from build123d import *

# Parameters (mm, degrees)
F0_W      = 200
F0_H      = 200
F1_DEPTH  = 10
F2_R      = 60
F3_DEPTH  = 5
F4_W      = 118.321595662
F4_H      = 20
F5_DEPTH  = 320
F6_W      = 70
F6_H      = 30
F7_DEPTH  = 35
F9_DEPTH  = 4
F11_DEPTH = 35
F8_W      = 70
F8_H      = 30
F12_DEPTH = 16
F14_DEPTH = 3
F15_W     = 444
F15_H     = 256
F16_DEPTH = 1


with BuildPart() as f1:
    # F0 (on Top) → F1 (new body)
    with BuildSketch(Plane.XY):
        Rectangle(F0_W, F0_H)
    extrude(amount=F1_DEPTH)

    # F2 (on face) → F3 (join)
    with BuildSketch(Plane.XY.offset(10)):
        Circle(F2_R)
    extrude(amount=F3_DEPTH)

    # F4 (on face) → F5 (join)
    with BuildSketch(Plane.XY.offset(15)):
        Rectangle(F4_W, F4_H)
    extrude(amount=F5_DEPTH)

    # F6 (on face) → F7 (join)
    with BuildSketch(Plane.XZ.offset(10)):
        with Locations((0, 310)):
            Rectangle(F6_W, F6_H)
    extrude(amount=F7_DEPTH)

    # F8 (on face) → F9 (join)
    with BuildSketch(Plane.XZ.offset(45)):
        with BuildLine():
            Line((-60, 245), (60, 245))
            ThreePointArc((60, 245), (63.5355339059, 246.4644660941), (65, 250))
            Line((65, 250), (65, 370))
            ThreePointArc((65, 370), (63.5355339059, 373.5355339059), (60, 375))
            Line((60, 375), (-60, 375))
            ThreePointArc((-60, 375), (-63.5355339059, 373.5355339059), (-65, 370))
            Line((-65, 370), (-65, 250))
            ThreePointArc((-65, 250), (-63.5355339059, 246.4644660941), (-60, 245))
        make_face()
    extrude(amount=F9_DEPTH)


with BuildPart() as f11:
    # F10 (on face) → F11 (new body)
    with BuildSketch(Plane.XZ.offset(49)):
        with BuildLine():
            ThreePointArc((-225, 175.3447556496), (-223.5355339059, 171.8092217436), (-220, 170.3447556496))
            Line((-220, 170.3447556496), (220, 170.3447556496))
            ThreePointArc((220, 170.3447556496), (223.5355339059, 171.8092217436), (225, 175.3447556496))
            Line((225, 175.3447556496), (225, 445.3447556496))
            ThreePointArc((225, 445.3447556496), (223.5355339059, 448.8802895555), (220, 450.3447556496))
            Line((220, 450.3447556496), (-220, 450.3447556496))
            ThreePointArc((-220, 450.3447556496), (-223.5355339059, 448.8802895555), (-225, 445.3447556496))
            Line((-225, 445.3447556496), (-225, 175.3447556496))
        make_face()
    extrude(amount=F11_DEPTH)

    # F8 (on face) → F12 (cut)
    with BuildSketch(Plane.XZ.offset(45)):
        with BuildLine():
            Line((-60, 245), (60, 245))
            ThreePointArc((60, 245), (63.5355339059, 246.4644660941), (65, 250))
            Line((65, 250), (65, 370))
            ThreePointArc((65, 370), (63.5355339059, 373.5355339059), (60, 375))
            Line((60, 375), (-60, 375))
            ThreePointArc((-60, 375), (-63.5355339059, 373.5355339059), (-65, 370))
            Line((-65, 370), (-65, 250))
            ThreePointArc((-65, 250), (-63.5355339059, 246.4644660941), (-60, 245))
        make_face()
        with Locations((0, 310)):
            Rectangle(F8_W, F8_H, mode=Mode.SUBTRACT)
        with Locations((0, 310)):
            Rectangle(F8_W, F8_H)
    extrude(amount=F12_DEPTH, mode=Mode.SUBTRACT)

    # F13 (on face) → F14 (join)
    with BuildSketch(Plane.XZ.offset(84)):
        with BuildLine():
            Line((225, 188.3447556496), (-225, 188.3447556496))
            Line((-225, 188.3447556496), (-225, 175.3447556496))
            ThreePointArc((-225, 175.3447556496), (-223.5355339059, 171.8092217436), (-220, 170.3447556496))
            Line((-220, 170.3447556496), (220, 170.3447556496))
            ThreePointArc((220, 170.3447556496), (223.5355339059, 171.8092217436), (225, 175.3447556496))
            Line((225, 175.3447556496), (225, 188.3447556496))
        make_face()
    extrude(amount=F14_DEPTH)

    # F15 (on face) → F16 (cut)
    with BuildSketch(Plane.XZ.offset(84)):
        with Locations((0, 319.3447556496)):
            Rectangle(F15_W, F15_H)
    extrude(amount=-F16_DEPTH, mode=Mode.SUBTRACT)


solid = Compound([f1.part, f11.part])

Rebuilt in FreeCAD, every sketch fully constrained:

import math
import FreeCAD as App
import Part
import Sketcher
from FreeCAD import Vector

doc = App.newDocument("Part")
params = doc.addObject("Spreadsheet::Sheet", "Params")
for row, (alias, value) in enumerate([
    ("sketch1_width", "200 mm"),
    ("pad1_length", "10 mm"),
    ("sketch2_diameter", "120 mm"),
    ("pad2_length", "5 mm"),
    ("sketch3_height", "20 mm"),
    ("pad3_length", "320 mm"),
    ("sketch4_width", "70 mm"),
    ("sketch4_height", "30 mm"),
    ("pad4_length", "35 mm"),
    ("sketch5_radius", "5 mm"),
    ("sketch5_width", "120 mm"),
    ("pad5_length", "4 mm"),
    ("sketch6_radius", "5 mm"),
    ("sketch6_width", "440 mm"),
    ("sketch6_height", "270 mm"),
    ("pad6_length", "35 mm"),
    ("sketch7_radius", "5 mm"),
    ("sketch7_width", "120 mm"),
    ("pocket1_length", "16 mm"),
    ("sketch8_radius", "5 mm"),
    ("sketch8_width", "450 mm"),
    ("sketch8_height", "13 mm"),
    ("pad7_length", "3 mm"),
    ("sketch9_width", "444 mm"),
    ("sketch9_height", "256 mm"),
    ("pocket2_length", "1 mm"),
], start=1):
    params.set(f"A{row}", alias)
    params.set(f"B{row}", "=" + value)
    params.setAlias(f"B{row}", alias)

body = doc.addObject("PartDesign::Body", "Body")

# Sketch on XY plane
sketch1 = body.newObject("Sketcher::SketchObject", "Sketch")
sketch1.AttachmentSupport = (doc.getObject("XY_Plane"), [""])
sketch1.MapMode = "FlatFace"
sketch1.addGeometry([
    Part.LineSegment(Vector(-100, 100, 0), Vector(-100, -100, 0)),
    Part.LineSegment(Vector(-100, -100, 0), Vector(100, -100, 0)),
    Part.LineSegment(Vector(100, -100, 0), Vector(100, 100, 0)),
    Part.LineSegment(Vector(100, 100, 0), Vector(-100, 100, 0)),
], False)
sketch1.addConstraint([
    Sketcher.Constraint("Coincident", 0, 2, 1, 1),
    Sketcher.Constraint("Coincident", 1, 2, 2, 1),
    Sketcher.Constraint("Coincident", 2, 2, 3, 1),
    Sketcher.Constraint("Coincident", 3, 2, 0, 1),
    Sketcher.Constraint("Vertical", 0),
    Sketcher.Constraint("Horizontal", 1),
    Sketcher.Constraint("Vertical", 2),
    Sketcher.Constraint("Horizontal", 3),
    Sketcher.Constraint("Symmetric", 0, 2, 2, 2, -1, 1),
    Sketcher.Constraint("Equal", 3, 0),
    Sketcher.Constraint("DistanceX", 1, 1, 1, 2, 200.0),
])
sketch1.setExpression("Constraints[10]", "Params.sketch1_width")
pad1 = body.newObject("PartDesign::Pad", "Pad")
pad1.Profile = sketch1
pad1.setExpression("Length", "Params.pad1_length")

# Sketch on XY plane
sketch2 = body.newObject("Sketcher::SketchObject", "Sketch001")
sketch2.AttachmentSupport = (doc.getObject("XY_Plane"), [""])
sketch2.MapMode = "FlatFace"
sketch2.AttachmentOffset = App.Placement(Vector(0, 0, 10), App.Rotation())
sketch2.addGeometry(Part.Circle(Vector(0, 0, 0), Vector(0, 0, 1), 60), False)
sketch2.addConstraint([
    Sketcher.Constraint("Coincident", 0, 3, -1, 1),
    Sketcher.Constraint("Diameter", 0, 120.0),
])
sketch2.setExpression("Constraints[1]", "Params.sketch2_diameter")
pad2 = body.newObject("PartDesign::Pad", "Pad001")
pad2.Profile = sketch2
pad2.setExpression("Length", "Params.pad2_length")

# Sketch on XY plane
sketch3 = body.newObject("Sketcher::SketchObject", "Sketch002")
sketch3.AttachmentSupport = (doc.getObject("XY_Plane"), [""])
sketch3.MapMode = "FlatFace"
sketch3.AttachmentOffset = App.Placement(Vector(0, 0, 15), App.Rotation())
sketch3.addGeometry([
    Part.LineSegment(Vector(-59, 10, 0), Vector(-59, -10, 0)),
    Part.LineSegment(Vector(-59, -10, 0), Vector(59, -10, 0)),
    Part.LineSegment(Vector(59, -10, 0), Vector(59, 10, 0)),
    Part.LineSegment(Vector(59, 10, 0), Vector(-59, 10, 0)),
], False)
sketch3.addConstraint([
    Sketcher.Constraint("Coincident", 0, 2, 1, 1),
    Sketcher.Constraint("Coincident", 1, 2, 2, 1),
    Sketcher.Constraint("Coincident", 2, 2, 3, 1),
    Sketcher.Constraint("Coincident", 3, 2, 0, 1),
    Sketcher.Constraint("Vertical", 0),
    Sketcher.Constraint("Horizontal", 1),
    Sketcher.Constraint("Vertical", 2),
    Sketcher.Constraint("Horizontal", 3),
    Sketcher.Constraint("Symmetric", 0, 2, 2, 2, -1, 1),
    Sketcher.Constraint("DistanceY", 0, 2, 0, 1, 20.0),
    Sketcher.Constraint("DistanceX", 1, 1, 1, 2, 118.321596),
])
sketch3.setExpression("Constraints[9]", "Params.sketch3_height")
pad3 = body.newObject("PartDesign::Pad", "Pad002")
pad3.Profile = sketch3
pad3.setExpression("Length", "Params.pad3_length")

# Sketch on XZ plane
sketch4 = body.newObject("Sketcher::SketchObject", "Sketch003")
sketch4.AttachmentSupport = (doc.getObject("XZ_Plane"), [""])
sketch4.MapMode = "FlatFace"
sketch4.AttachmentOffset = App.Placement(Vector(0, 0, 10), App.Rotation())
sketch4.addGeometry([
    Part.LineSegment(Vector(-35, 325, 0), Vector(-35, 295, 0)),
    Part.LineSegment(Vector(-35, 295, 0), Vector(35, 295, 0)),
    Part.LineSegment(Vector(35, 295, 0), Vector(35, 325, 0)),
    Part.LineSegment(Vector(35, 325, 0), Vector(-35, 325, 0)),
], False)
sketch4.addConstraint([
    Sketcher.Constraint("Coincident", 0, 2, 1, 1),
    Sketcher.Constraint("Coincident", 1, 2, 2, 1),
    Sketcher.Constraint("Coincident", 2, 2, 3, 1),
    Sketcher.Constraint("Coincident", 3, 2, 0, 1),
    Sketcher.Constraint("Vertical", 0),
    Sketcher.Constraint("Horizontal", 1),
    Sketcher.Constraint("Vertical", 2),
    Sketcher.Constraint("Horizontal", 3),
    Sketcher.Constraint("DistanceX", 1, 1, 1, 2, 70.0),
    Sketcher.Constraint("DistanceY", 0, 2, 0, 1, 30.0),
    Sketcher.Constraint("DistanceX", 0, 2, -1, 1, 35.0),
    Sketcher.Constraint("DistanceY", -1, 1, 0, 2, 295.0),
])
sketch4.setExpression("Constraints[8]", "Params.sketch4_width")
sketch4.setExpression("Constraints[9]", "Params.sketch4_height")
pad4 = body.newObject("PartDesign::Pad", "Pad003")
pad4.Profile = sketch4
pad4.setExpression("Length", "Params.pad4_length")

# Sketch on XZ plane
sketch5 = body.newObject("Sketcher::SketchObject", "Sketch004")
sketch5.AttachmentSupport = (doc.getObject("XZ_Plane"), [""])
sketch5.MapMode = "FlatFace"
sketch5.AttachmentOffset = App.Placement(Vector(0, 0, 45), App.Rotation())
sketch5.addGeometry([
    Part.LineSegment(Vector(-60, 245, 0), Vector(60, 245, 0)),  # 0
    Part.ArcOfCircle(Part.Circle(Vector(60, 250, 0), Vector(0, 0, 1), 5), math.radians(-90), math.radians(0)),  # 1
    Part.LineSegment(Vector(65, 250, 0), Vector(65, 370, 0)),  # 2
    Part.ArcOfCircle(Part.Circle(Vector(60, 370, 0), Vector(0, 0, 1), 5), math.radians(0), math.radians(90)),  # 3
    Part.LineSegment(Vector(60, 375, 0), Vector(-60, 375, 0)),  # 4
    Part.ArcOfCircle(Part.Circle(Vector(-60, 370, 0), Vector(0, 0, 1), 5), math.radians(90), math.radians(180)),  # 5
    Part.LineSegment(Vector(-65, 370, 0), Vector(-65, 250, 0)),  # 6
    Part.ArcOfCircle(Part.Circle(Vector(-60, 250, 0), Vector(0, 0, 1), 5), math.radians(180), math.radians(270)),  # 7
], False)
sketch5.addConstraint([
    Sketcher.Constraint("Tangent", 0, 2, 1, 1),
    Sketcher.Constraint("Tangent", 1, 2, 2, 1),
    Sketcher.Constraint("Tangent", 2, 2, 3, 1),
    Sketcher.Constraint("Tangent", 3, 2, 4, 1),
    Sketcher.Constraint("Tangent", 4, 2, 5, 1),
    Sketcher.Constraint("Tangent", 5, 2, 6, 1),
    Sketcher.Constraint("Tangent", 6, 2, 7, 1),
    Sketcher.Constraint("Tangent", 7, 2, 0, 1),
    Sketcher.Constraint("Horizontal", 0),
    Sketcher.Constraint("Vertical", 2),
    Sketcher.Constraint("Horizontal", 4),
    Sketcher.Constraint("Vertical", 6),
    Sketcher.Constraint("Equal", 1, 3),
    Sketcher.Constraint("Equal", 3, 5),
    Sketcher.Constraint("Equal", 5, 7),
    Sketcher.Constraint("Equal", 4, 2),
    Sketcher.Constraint("Radius", 1, 5.0),
    Sketcher.Constraint("DistanceX", 0, 1, 0, 2, 120.0),
    Sketcher.Constraint("DistanceX", -1, 1, 1, 3, 60.0),
    Sketcher.Constraint("DistanceY", -1, 1, 1, 3, 250.0),
])
sketch5.setExpression("Constraints[16]", "Params.sketch5_radius")
sketch5.setExpression("Constraints[17]", "Params.sketch5_width")
pad5 = body.newObject("PartDesign::Pad", "Pad004")
pad5.Profile = sketch5
pad5.setExpression("Length", "Params.pad5_length")
body2 = doc.addObject("PartDesign::Body", "Body001")

# Sketch on XZ plane
sketch6 = body2.newObject("Sketcher::SketchObject", "Sketch005")
sketch6.AttachmentSupport = (doc.getObject("XZ_Plane001"), [""])
sketch6.MapMode = "FlatFace"
sketch6.AttachmentOffset = App.Placement(Vector(0, 0, 49), App.Rotation())
sketch6.addGeometry([
    Part.ArcOfCircle(Part.Circle(Vector(-220, 175, 0), Vector(0, 0, 1), 5), math.radians(180), math.radians(270)),  # 0
    Part.LineSegment(Vector(-220, 170, 0), Vector(220, 170, 0)),  # 1
    Part.ArcOfCircle(Part.Circle(Vector(220, 175, 0), Vector(0, 0, 1), 5), math.radians(-90), math.radians(0)),  # 2
    Part.LineSegment(Vector(225, 175, 0), Vector(225, 445, 0)),  # 3
    Part.ArcOfCircle(Part.Circle(Vector(220, 445, 0), Vector(0, 0, 1), 5), math.radians(0), math.radians(90)),  # 4
    Part.LineSegment(Vector(220, 450, 0), Vector(-220, 450, 0)),  # 5
    Part.ArcOfCircle(Part.Circle(Vector(-220, 445, 0), Vector(0, 0, 1), 5), math.radians(90), math.radians(180)),  # 6
    Part.LineSegment(Vector(-225, 445, 0), Vector(-225, 175, 0)),  # 7
], False)
sketch6.addConstraint([
    Sketcher.Constraint("Tangent", 0, 2, 1, 1),
    Sketcher.Constraint("Tangent", 1, 2, 2, 1),
    Sketcher.Constraint("Tangent", 2, 2, 3, 1),
    Sketcher.Constraint("Tangent", 3, 2, 4, 1),
    Sketcher.Constraint("Tangent", 4, 2, 5, 1),
    Sketcher.Constraint("Tangent", 5, 2, 6, 1),
    Sketcher.Constraint("Tangent", 6, 2, 7, 1),
    Sketcher.Constraint("Tangent", 7, 2, 0, 1),
    Sketcher.Constraint("Horizontal", 1),
    Sketcher.Constraint("Vertical", 3),
    Sketcher.Constraint("Horizontal", 5),
    Sketcher.Constraint("Vertical", 7),
    Sketcher.Constraint("Equal", 0, 2),
    Sketcher.Constraint("Equal", 2, 4),
    Sketcher.Constraint("Equal", 4, 6),
    Sketcher.Constraint("Radius", 0, 5.0),
    Sketcher.Constraint("DistanceX", 1, 1, 1, 2, 440.0),
    Sketcher.Constraint("DistanceY", 3, 1, 3, 2, 270.0),
    Sketcher.Constraint("DistanceX", 0, 3, -1, 1, 220.0),
    Sketcher.Constraint("DistanceY", -1, 1, 0, 3, 175.344756),
])
sketch6.setExpression("Constraints[15]", "Params.sketch6_radius")
sketch6.setExpression("Constraints[16]", "Params.sketch6_width")
sketch6.setExpression("Constraints[17]", "Params.sketch6_height")
pad6 = body2.newObject("PartDesign::Pad", "Pad005")
pad6.Profile = sketch6
pad6.setExpression("Length", "Params.pad6_length")

# Sketch on XZ plane
sketch7 = body2.newObject("Sketcher::SketchObject", "Sketch006")
sketch7.AttachmentSupport = (doc.getObject("XZ_Plane001"), [""])
sketch7.MapMode = "FlatFace"
sketch7.AttachmentOffset = App.Placement(Vector(0, 0, 45), App.Rotation())
sketch7.addGeometry([
    Part.LineSegment(Vector(-60, 245, 0), Vector(60, 245, 0)),  # 0
    Part.ArcOfCircle(Part.Circle(Vector(60, 250, 0), Vector(0, 0, 1), 5), math.radians(-90), math.radians(0)),  # 1
    Part.LineSegment(Vector(65, 250, 0), Vector(65, 370, 0)),  # 2
    Part.ArcOfCircle(Part.Circle(Vector(60, 370, 0), Vector(0, 0, 1), 5), math.radians(0), math.radians(90)),  # 3
    Part.LineSegment(Vector(60, 375, 0), Vector(-60, 375, 0)),  # 4
    Part.ArcOfCircle(Part.Circle(Vector(-60, 370, 0), Vector(0, 0, 1), 5), math.radians(90), math.radians(180)),  # 5
    Part.LineSegment(Vector(-65, 370, 0), Vector(-65, 250, 0)),  # 6
    Part.ArcOfCircle(Part.Circle(Vector(-60, 250, 0), Vector(0, 0, 1), 5), math.radians(180), math.radians(270)),  # 7
], False)
sketch7.addConstraint([
    Sketcher.Constraint("Tangent", 0, 2, 1, 1),
    Sketcher.Constraint("Tangent", 1, 2, 2, 1),
    Sketcher.Constraint("Tangent", 2, 2, 3, 1),
    Sketcher.Constraint("Tangent", 3, 2, 4, 1),
    Sketcher.Constraint("Tangent", 4, 2, 5, 1),
    Sketcher.Constraint("Tangent", 5, 2, 6, 1),
    Sketcher.Constraint("Tangent", 6, 2, 7, 1),
    Sketcher.Constraint("Tangent", 7, 2, 0, 1),
    Sketcher.Constraint("Horizontal", 0),
    Sketcher.Constraint("Vertical", 2),
    Sketcher.Constraint("Horizontal", 4),
    Sketcher.Constraint("Vertical", 6),
    Sketcher.Constraint("Equal", 1, 3),
    Sketcher.Constraint("Equal", 3, 5),
    Sketcher.Constraint("Equal", 5, 7),
    Sketcher.Constraint("Equal", 4, 2),
    Sketcher.Constraint("Radius", 1, 5.0),
    Sketcher.Constraint("DistanceX", 0, 1, 0, 2, 120.0),
    Sketcher.Constraint("DistanceX", -1, 1, 1, 3, 60.0),
    Sketcher.Constraint("DistanceY", -1, 1, 1, 3, 250.0),
])
sketch7.setExpression("Constraints[16]", "Params.sketch7_radius")
sketch7.setExpression("Constraints[17]", "Params.sketch7_width")
pocket1 = body2.newObject("PartDesign::Pocket", "Pocket")
pocket1.Profile = sketch7
pocket1.setExpression("Length", "Params.pocket1_length")
pocket1.Reversed = True

# Sketch on XZ plane
sketch8 = body2.newObject("Sketcher::SketchObject", "Sketch007")
sketch8.AttachmentSupport = (doc.getObject("XZ_Plane001"), [""])
sketch8.MapMode = "FlatFace"
sketch8.AttachmentOffset = App.Placement(Vector(0, 0, 84), App.Rotation())
sketch8.addGeometry([
    Part.LineSegment(Vector(225, 188, 0), Vector(-225, 188, 0)),  # 0
    Part.LineSegment(Vector(-225, 188, 0), Vector(-225, 175, 0)),  # 1
    Part.ArcOfCircle(Part.Circle(Vector(-220, 175, 0), Vector(0, 0, 1), 5), math.radians(180), math.radians(270)),  # 2
    Part.LineSegment(Vector(-220, 170, 0), Vector(220, 170, 0)),  # 3
    Part.ArcOfCircle(Part.Circle(Vector(220, 175, 0), Vector(0, 0, 1), 5), math.radians(-90), math.radians(0)),  # 4
    Part.LineSegment(Vector(225, 175, 0), Vector(225, 188, 0)),  # 5
], False)
sketch8.addConstraint([
    Sketcher.Constraint("Coincident", 0, 2, 1, 1),
    Sketcher.Constraint("Tangent", 1, 2, 2, 1),
    Sketcher.Constraint("Tangent", 2, 2, 3, 1),
    Sketcher.Constraint("Tangent", 3, 2, 4, 1),
    Sketcher.Constraint("Tangent", 4, 2, 5, 1),
    Sketcher.Constraint("Coincident", 5, 2, 0, 1),
    Sketcher.Constraint("Horizontal", 0),
    Sketcher.Constraint("Vertical", 1),
    Sketcher.Constraint("Horizontal", 3),
    Sketcher.Constraint("Vertical", 5),
    Sketcher.Constraint("Equal", 2, 4),
    Sketcher.Constraint("Radius", 2, 5.0),
    Sketcher.Constraint("DistanceX", 0, 2, 0, 1, 450.0),
    Sketcher.Constraint("DistanceY", 1, 2, 1, 1, 13.0),
    Sketcher.Constraint("DistanceX", 2, 3, -1, 1, 220.0),
    Sketcher.Constraint("DistanceY", -1, 1, 2, 3, 175.344756),
])
sketch8.setExpression("Constraints[11]", "Params.sketch8_radius")
sketch8.setExpression("Constraints[12]", "Params.sketch8_width")
sketch8.setExpression("Constraints[13]", "Params.sketch8_height")
pad7 = body2.newObject("PartDesign::Pad", "Pad006")
pad7.Profile = sketch8
pad7.setExpression("Length", "Params.pad7_length")

# Sketch on XZ plane
sketch9 = body2.newObject("Sketcher::SketchObject", "Sketch008")
sketch9.AttachmentSupport = (doc.getObject("XZ_Plane001"), [""])
sketch9.MapMode = "FlatFace"
sketch9.AttachmentOffset = App.Placement(Vector(0, 0, 84), App.Rotation())
sketch9.addGeometry([
    Part.LineSegment(Vector(-222, 447, 0), Vector(-222, 191, 0)),
    Part.LineSegment(Vector(-222, 191, 0), Vector(222, 191, 0)),
    Part.LineSegment(Vector(222, 191, 0), Vector(222, 447, 0)),
    Part.LineSegment(Vector(222, 447, 0), Vector(-222, 447, 0)),
], False)
sketch9.addConstraint([
    Sketcher.Constraint("Coincident", 0, 2, 1, 1),
    Sketcher.Constraint("Coincident", 1, 2, 2, 1),
    Sketcher.Constraint("Coincident", 2, 2, 3, 1),
    Sketcher.Constraint("Coincident", 3, 2, 0, 1),
    Sketcher.Constraint("Vertical", 0),
    Sketcher.Constraint("Horizontal", 1),
    Sketcher.Constraint("Vertical", 2),
    Sketcher.Constraint("Horizontal", 3),
    Sketcher.Constraint("DistanceX", 1, 1, 1, 2, 444.0),
    Sketcher.Constraint("DistanceY", 0, 2, 0, 1, 256.0),
    Sketcher.Constraint("DistanceX", 0, 2, -1, 1, 222.0),
    Sketcher.Constraint("DistanceY", -1, 1, 0, 2, 191.344756),
])
sketch9.setExpression("Constraints[8]", "Params.sketch9_width")
sketch9.setExpression("Constraints[9]", "Params.sketch9_height")
pocket2 = body2.newObject("PartDesign::Pocket", "Pocket001")
pocket2.Profile = sketch9
pocket2.setExpression("Length", "Params.pocket2_length")

doc.recompute()
